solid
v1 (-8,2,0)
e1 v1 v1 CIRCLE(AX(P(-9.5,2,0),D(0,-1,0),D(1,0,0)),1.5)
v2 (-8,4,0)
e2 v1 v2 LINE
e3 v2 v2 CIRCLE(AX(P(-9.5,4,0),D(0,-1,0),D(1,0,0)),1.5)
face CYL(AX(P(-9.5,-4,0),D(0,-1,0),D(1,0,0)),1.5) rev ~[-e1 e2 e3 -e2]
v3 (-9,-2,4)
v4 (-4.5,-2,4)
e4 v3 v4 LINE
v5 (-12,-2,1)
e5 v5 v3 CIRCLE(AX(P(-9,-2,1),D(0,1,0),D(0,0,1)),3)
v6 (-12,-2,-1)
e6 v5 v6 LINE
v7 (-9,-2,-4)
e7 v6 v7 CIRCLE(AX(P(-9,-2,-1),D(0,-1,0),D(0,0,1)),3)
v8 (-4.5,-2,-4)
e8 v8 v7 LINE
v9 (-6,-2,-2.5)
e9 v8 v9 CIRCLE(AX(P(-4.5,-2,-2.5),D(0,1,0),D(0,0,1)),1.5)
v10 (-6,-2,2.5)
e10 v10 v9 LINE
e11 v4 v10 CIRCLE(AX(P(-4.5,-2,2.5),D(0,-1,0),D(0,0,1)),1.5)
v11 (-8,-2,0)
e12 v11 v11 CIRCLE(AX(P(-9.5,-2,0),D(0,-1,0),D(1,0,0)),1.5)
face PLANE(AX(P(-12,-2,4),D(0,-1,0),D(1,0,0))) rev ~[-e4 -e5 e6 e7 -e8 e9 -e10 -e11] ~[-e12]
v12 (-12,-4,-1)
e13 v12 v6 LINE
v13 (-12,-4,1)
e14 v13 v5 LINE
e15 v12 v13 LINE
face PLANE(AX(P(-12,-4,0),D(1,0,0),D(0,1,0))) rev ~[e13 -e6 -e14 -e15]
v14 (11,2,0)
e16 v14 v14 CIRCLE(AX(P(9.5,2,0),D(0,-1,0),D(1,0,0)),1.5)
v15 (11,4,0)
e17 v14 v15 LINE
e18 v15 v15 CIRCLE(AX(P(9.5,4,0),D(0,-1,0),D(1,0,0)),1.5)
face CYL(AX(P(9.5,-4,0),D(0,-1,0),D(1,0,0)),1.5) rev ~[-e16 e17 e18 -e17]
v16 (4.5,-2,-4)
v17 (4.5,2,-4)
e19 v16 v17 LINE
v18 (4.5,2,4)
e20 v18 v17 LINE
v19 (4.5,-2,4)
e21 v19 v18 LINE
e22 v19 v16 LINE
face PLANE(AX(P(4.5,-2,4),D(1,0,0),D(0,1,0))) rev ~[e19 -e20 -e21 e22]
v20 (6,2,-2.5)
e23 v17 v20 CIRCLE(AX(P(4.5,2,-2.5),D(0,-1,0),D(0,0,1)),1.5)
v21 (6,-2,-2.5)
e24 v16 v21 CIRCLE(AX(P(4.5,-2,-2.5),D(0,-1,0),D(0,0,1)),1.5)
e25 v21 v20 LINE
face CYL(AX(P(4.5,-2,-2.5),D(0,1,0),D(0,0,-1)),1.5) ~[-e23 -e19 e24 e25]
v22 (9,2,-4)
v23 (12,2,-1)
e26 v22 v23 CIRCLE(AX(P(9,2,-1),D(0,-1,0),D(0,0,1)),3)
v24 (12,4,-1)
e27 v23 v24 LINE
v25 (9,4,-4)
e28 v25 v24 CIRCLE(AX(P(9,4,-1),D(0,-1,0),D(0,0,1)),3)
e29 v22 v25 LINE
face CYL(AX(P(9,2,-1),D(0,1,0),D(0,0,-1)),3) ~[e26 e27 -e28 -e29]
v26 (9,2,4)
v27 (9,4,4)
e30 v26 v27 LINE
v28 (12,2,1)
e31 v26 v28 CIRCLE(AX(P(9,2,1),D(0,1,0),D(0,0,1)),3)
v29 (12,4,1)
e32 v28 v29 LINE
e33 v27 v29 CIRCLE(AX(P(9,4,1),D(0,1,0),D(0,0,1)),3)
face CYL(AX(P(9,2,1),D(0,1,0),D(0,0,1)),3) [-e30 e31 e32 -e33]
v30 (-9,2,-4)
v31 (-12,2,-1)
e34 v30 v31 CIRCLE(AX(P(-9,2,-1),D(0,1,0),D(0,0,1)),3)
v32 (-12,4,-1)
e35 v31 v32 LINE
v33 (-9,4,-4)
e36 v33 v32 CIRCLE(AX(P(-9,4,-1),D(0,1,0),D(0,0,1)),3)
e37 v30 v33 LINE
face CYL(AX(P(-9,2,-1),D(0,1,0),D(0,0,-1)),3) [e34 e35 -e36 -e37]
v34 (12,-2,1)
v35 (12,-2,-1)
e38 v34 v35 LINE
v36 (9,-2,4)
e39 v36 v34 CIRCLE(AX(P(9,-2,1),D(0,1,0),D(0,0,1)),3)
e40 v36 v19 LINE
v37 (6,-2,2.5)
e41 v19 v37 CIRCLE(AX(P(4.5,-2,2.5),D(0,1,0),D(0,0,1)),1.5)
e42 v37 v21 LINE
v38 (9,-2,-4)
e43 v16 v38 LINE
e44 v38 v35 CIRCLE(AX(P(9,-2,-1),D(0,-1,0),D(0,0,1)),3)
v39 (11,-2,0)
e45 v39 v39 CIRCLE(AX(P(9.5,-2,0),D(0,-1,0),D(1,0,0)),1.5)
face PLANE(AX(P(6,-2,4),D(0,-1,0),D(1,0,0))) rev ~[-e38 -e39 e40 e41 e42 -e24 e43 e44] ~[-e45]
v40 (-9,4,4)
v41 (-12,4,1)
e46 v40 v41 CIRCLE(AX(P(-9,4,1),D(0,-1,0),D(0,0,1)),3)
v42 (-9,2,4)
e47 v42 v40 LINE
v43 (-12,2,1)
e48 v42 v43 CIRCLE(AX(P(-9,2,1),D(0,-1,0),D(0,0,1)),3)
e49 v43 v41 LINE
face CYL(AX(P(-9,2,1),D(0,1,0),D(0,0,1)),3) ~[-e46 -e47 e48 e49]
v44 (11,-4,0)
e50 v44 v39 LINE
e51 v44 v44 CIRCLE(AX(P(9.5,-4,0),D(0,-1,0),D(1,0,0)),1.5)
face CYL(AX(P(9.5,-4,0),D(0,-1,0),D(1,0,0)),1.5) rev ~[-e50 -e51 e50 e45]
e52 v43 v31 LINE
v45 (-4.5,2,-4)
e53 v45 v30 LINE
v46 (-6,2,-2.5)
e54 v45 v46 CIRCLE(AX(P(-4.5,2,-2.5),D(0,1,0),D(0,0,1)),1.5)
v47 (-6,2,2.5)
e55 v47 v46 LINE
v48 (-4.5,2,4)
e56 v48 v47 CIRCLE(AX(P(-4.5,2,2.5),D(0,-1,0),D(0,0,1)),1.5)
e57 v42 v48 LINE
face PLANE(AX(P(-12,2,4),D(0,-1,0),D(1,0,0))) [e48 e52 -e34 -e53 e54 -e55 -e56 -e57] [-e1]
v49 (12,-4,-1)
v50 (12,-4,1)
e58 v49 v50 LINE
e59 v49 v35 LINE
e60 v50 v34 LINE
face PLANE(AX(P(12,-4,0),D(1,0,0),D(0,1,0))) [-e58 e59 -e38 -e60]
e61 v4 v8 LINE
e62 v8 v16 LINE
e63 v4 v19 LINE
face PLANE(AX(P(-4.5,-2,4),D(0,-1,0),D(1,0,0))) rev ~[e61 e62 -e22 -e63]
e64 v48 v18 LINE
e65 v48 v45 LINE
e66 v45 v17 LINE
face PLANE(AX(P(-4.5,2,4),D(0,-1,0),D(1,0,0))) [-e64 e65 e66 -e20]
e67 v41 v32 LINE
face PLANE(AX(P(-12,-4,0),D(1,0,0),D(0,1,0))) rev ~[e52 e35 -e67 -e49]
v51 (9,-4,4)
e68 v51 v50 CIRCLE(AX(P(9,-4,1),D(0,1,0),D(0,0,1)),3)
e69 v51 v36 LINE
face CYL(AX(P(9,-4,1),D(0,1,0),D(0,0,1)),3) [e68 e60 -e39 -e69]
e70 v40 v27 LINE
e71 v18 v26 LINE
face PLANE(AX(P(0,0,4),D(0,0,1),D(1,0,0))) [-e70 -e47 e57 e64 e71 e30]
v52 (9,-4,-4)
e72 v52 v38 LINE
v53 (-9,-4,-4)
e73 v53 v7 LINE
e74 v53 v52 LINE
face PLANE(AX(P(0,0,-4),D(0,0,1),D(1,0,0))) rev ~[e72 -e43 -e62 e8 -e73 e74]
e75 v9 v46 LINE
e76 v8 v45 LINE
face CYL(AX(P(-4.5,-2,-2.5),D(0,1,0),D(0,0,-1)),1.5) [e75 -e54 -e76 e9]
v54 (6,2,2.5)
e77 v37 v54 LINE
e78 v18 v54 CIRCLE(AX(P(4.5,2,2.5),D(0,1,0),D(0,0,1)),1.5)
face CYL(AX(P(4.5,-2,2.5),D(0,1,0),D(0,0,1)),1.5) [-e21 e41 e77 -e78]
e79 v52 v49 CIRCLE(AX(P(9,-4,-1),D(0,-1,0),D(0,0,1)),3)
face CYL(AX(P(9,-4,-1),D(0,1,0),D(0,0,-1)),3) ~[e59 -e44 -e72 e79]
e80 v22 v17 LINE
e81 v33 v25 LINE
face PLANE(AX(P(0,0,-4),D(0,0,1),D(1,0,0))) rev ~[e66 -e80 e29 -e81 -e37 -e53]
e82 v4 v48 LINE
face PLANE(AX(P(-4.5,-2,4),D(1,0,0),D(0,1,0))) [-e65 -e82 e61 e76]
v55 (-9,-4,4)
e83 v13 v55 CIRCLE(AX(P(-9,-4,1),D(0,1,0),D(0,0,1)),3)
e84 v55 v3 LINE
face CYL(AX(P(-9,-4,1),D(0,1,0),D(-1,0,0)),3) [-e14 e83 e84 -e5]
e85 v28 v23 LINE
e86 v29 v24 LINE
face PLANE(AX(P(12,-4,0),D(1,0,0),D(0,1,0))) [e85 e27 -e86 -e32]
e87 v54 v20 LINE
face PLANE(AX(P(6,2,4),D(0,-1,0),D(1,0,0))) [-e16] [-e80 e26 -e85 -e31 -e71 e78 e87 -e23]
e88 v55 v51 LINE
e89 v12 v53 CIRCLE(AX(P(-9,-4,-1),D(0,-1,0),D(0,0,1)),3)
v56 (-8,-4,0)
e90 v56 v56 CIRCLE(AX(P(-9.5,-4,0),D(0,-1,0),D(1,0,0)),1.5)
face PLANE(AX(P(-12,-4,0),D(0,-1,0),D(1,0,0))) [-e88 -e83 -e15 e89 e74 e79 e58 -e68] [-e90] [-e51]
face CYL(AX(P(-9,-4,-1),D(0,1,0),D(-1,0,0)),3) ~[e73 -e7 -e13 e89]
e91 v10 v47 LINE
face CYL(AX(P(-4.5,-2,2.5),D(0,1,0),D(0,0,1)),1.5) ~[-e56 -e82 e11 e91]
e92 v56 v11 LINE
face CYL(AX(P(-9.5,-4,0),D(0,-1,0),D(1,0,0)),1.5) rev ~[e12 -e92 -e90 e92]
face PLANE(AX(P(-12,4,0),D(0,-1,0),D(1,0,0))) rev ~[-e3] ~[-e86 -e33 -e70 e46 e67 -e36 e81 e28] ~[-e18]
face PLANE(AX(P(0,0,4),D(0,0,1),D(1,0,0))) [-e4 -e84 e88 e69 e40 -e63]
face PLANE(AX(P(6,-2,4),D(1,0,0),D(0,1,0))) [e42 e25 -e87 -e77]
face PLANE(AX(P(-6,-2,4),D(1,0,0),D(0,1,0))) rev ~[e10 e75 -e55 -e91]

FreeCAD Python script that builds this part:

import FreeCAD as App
import Part
import Sketcher
from FreeCAD import Vector
Q = App.Units.Quantity


def edges_at(feature, points):
    """Names of the edges that pass closest to the given points."""
    edges = feature.Shape.Edges
    near = lambda p: min(range(len(edges)), key=lambda i: edges[i].distToShape(Part.Vertex(*p))[0])
    return sorted({f"Edge{near(p) + 1}" for p in points})


def add_polygon(sketch, points):
    """Adds a closed chain of lines whose ends are joined by coincident constraints."""
    first, n = sketch.GeometryCount, len(points)
    for a, b in zip(points, points[1:] + points[:1]):
        sketch.addGeometry(Part.LineSegment(App.Vector(*a, 0), App.Vector(*b, 0)), False)
    for i in range(n):
        sketch.addConstraint(Sketcher.Constraint("Coincident", first + i, 2, first + (i + 1) % n, 1))

doc = App.newDocument("Part")
body = doc.addObject("PartDesign::Body", "Body")

# Sketch on XY plane
sketch1 = body.newObject("Sketcher::SketchObject", "Sketch")
sketch1.AttachmentSupport = (doc.getObject("XY_Plane"), [""])
sketch1.MapMode = "FlatFace"
add_polygon(sketch1, [(-12, 4), (-12, -4), (12, -4), (12, 4)])  # lines 0-3
sketch1.addConstraint(Sketcher.Constraint("Vertical", 0))
sketch1.addConstraint(Sketcher.Constraint("Horizontal", 1))
sketch1.addConstraint(Sketcher.Constraint("Vertical", 2))
sketch1.addConstraint(Sketcher.Constraint("Horizontal", 3))
sketch1.addConstraint(Sketcher.Constraint("Symmetric", 0, 2, 2, 2, -1, 1))
sketch1.addConstraint(Sketcher.Constraint("DistanceX", 1, 1, 1, 2, Q("24 mm")))
sketch1.addConstraint(Sketcher.Constraint("DistanceY", 0, 2, 0, 1, Q("8 mm")))
pad1 = body.newObject("PartDesign::Pad", "Pad")
pad1.Profile = sketch1
pad1.Length = 8
pad1.Midplane = True

# Sketch on XY plane
sketch2 = body.newObject("Sketcher::SketchObject", "Sketch001")
sketch2.AttachmentSupport = (doc.getObject("XY_Plane"), [""])
sketch2.MapMode = "FlatFace"
sketch2.AttachmentOffset = App.Placement(Vector(0, 0, 4), App.Rotation())
add_polygon(sketch2, [(-12, 2), (-12, -2), (-6, -2), (-6, 2)])  # lines 0-3
add_polygon(sketch2, [(6, 2), (6, -2), (12, -2), (12, 2)])  # lines 4-7
sketch2.addConstraint(Sketcher.Constraint("Vertical", 0))
sketch2.addConstraint(Sketcher.Constraint("Horizontal", 1))
sketch2.addConstraint(Sketcher.Constraint("Vertical", 2))
sketch2.addConstraint(Sketcher.Constraint("Horizontal", 3))
sketch2.addConstraint(Sketcher.Constraint("Vertical", 4))
sketch2.addConstraint(Sketcher.Constraint("Horizontal", 5))
sketch2.addConstraint(Sketcher.Constraint("Vertical", 6))
sketch2.addConstraint(Sketcher.Constraint("Horizontal", 7))
sketch2.addConstraint(Sketcher.Constraint("Symmetric", 2, 2, 4, 2, -1, 1))
sketch2.addConstraint(Sketcher.Constraint("Symmetric", 0, 2, 6, 2, -1, 1))
sketch2.addConstraint(Sketcher.Constraint("Horizontal", 1, 2, 4, 2))
sketch2.addConstraint(Sketcher.Constraint("DistanceX", 1, 1, 1, 2, Q("6 mm")))
sketch2.addConstraint(Sketcher.Constraint("DistanceY", 0, 2, 0, 1, Q("4 mm")))
sketch2.addConstraint(Sketcher.Constraint("DistanceX", 0, 2, -1, 1, Q("12 mm")))
pocket1 = body.newObject("PartDesign::Pocket", "Pocket")
pocket1.Profile = sketch2
pocket1.Length = 25

# Sketch on XZ plane
sketch3 = body.newObject("Sketcher::SketchObject", "Sketch002")
sketch3.AttachmentSupport = (doc.getObject("XZ_Plane"), [""])
sketch3.MapMode = "FlatFace"
sketch3.AttachmentOffset = App.Placement(Vector(0, 0, 4), App.Rotation())
sketch3.addGeometry(Part.Circle(Vector(-9.5, 0, 0), Vector(0, 0, 1), 1.5), False)
sketch3.addGeometry(Part.Circle(Vector(9.5, 0, 0), Vector(0, 0, 1), 1.5), False)
sketch3.addConstraint(Sketcher.Constraint("Equal", 0, 1))
sketch3.addConstraint(Sketcher.Constraint("Symmetric", 0, 3, 1, 3, -1, 1))
sketch3.addConstraint(Sketcher.Constraint("PointOnObject", 0, 3, -1))
sketch3.addConstraint(Sketcher.Constraint("Diameter", 0, Q("3 mm")))
sketch3.addConstraint(Sketcher.Constraint("DistanceX", 0, 3, 1, 3, Q("19 mm")))
pocket2 = body.newObject("PartDesign::Pocket", "Pocket001")
pocket2.Profile = sketch3
pocket2.Length = 25
doc.recompute()

fillet = body.newObject("PartDesign::Fillet", "Fillet")
fillet.Base = (pocket2, edges_at(pocket2, [
    (12, -3, 4),
    (12, 3, 4),
    (12, -3, -4),
    (12, 3, -4),
    (-12, -3, 4),
    (-12, 3, 4),
    (-12, -3, -4),
    (-12, 3, -4),
]))
fillet.Radius = 3
doc.recompute()

fillet2 = body.newObject("PartDesign::Fillet", "Fillet001")
fillet2.Base = (fillet, edges_at(fillet, [
    (6, 0, 4),
    (-6, 0, 4),
    (6, 0, -4),
    (-6, 0, -4),
]))
fillet2.Radius = 1.5

# Sketch on XY plane
sketch4 = body.newObject("Sketcher::SketchObject", "Sketch003")
sketch4.AttachmentSupport = (doc.getObject("XY_Plane"), [""])
sketch4.MapMode = "FlatFace"
sketch4.AttachmentOffset = App.Placement(Vector(0, 0, 4), App.Rotation())
add_polygon(sketch4, [(-4.5, 2), (-4.5, -2), (4.5, -2), (4.5, 2)])  # lines 0-3
sketch4.addConstraint(Sketcher.Constraint("Vertical", 0))
sketch4.addConstraint(Sketcher.Constraint("Horizontal", 1))
sketch4.addConstraint(Sketcher.Constraint("Vertical", 2))
sketch4.addConstraint(Sketcher.Constraint("Horizontal", 3))
sketch4.addConstraint(Sketcher.Constraint("Symmetric", 0, 2, 2, 2, -1, 1))
sketch4.addConstraint(Sketcher.Constraint("DistanceX", 1, 1, 1, 2, Q("9 mm")))
sketch4.addConstraint(Sketcher.Constraint("DistanceY", 0, 2, 0, 1, Q("4 mm")))
pocket3 = body.newObject("PartDesign::Pocket", "Pocket002")
pocket3.Profile = sketch4
pocket3.Length = 25

doc.recompute()
